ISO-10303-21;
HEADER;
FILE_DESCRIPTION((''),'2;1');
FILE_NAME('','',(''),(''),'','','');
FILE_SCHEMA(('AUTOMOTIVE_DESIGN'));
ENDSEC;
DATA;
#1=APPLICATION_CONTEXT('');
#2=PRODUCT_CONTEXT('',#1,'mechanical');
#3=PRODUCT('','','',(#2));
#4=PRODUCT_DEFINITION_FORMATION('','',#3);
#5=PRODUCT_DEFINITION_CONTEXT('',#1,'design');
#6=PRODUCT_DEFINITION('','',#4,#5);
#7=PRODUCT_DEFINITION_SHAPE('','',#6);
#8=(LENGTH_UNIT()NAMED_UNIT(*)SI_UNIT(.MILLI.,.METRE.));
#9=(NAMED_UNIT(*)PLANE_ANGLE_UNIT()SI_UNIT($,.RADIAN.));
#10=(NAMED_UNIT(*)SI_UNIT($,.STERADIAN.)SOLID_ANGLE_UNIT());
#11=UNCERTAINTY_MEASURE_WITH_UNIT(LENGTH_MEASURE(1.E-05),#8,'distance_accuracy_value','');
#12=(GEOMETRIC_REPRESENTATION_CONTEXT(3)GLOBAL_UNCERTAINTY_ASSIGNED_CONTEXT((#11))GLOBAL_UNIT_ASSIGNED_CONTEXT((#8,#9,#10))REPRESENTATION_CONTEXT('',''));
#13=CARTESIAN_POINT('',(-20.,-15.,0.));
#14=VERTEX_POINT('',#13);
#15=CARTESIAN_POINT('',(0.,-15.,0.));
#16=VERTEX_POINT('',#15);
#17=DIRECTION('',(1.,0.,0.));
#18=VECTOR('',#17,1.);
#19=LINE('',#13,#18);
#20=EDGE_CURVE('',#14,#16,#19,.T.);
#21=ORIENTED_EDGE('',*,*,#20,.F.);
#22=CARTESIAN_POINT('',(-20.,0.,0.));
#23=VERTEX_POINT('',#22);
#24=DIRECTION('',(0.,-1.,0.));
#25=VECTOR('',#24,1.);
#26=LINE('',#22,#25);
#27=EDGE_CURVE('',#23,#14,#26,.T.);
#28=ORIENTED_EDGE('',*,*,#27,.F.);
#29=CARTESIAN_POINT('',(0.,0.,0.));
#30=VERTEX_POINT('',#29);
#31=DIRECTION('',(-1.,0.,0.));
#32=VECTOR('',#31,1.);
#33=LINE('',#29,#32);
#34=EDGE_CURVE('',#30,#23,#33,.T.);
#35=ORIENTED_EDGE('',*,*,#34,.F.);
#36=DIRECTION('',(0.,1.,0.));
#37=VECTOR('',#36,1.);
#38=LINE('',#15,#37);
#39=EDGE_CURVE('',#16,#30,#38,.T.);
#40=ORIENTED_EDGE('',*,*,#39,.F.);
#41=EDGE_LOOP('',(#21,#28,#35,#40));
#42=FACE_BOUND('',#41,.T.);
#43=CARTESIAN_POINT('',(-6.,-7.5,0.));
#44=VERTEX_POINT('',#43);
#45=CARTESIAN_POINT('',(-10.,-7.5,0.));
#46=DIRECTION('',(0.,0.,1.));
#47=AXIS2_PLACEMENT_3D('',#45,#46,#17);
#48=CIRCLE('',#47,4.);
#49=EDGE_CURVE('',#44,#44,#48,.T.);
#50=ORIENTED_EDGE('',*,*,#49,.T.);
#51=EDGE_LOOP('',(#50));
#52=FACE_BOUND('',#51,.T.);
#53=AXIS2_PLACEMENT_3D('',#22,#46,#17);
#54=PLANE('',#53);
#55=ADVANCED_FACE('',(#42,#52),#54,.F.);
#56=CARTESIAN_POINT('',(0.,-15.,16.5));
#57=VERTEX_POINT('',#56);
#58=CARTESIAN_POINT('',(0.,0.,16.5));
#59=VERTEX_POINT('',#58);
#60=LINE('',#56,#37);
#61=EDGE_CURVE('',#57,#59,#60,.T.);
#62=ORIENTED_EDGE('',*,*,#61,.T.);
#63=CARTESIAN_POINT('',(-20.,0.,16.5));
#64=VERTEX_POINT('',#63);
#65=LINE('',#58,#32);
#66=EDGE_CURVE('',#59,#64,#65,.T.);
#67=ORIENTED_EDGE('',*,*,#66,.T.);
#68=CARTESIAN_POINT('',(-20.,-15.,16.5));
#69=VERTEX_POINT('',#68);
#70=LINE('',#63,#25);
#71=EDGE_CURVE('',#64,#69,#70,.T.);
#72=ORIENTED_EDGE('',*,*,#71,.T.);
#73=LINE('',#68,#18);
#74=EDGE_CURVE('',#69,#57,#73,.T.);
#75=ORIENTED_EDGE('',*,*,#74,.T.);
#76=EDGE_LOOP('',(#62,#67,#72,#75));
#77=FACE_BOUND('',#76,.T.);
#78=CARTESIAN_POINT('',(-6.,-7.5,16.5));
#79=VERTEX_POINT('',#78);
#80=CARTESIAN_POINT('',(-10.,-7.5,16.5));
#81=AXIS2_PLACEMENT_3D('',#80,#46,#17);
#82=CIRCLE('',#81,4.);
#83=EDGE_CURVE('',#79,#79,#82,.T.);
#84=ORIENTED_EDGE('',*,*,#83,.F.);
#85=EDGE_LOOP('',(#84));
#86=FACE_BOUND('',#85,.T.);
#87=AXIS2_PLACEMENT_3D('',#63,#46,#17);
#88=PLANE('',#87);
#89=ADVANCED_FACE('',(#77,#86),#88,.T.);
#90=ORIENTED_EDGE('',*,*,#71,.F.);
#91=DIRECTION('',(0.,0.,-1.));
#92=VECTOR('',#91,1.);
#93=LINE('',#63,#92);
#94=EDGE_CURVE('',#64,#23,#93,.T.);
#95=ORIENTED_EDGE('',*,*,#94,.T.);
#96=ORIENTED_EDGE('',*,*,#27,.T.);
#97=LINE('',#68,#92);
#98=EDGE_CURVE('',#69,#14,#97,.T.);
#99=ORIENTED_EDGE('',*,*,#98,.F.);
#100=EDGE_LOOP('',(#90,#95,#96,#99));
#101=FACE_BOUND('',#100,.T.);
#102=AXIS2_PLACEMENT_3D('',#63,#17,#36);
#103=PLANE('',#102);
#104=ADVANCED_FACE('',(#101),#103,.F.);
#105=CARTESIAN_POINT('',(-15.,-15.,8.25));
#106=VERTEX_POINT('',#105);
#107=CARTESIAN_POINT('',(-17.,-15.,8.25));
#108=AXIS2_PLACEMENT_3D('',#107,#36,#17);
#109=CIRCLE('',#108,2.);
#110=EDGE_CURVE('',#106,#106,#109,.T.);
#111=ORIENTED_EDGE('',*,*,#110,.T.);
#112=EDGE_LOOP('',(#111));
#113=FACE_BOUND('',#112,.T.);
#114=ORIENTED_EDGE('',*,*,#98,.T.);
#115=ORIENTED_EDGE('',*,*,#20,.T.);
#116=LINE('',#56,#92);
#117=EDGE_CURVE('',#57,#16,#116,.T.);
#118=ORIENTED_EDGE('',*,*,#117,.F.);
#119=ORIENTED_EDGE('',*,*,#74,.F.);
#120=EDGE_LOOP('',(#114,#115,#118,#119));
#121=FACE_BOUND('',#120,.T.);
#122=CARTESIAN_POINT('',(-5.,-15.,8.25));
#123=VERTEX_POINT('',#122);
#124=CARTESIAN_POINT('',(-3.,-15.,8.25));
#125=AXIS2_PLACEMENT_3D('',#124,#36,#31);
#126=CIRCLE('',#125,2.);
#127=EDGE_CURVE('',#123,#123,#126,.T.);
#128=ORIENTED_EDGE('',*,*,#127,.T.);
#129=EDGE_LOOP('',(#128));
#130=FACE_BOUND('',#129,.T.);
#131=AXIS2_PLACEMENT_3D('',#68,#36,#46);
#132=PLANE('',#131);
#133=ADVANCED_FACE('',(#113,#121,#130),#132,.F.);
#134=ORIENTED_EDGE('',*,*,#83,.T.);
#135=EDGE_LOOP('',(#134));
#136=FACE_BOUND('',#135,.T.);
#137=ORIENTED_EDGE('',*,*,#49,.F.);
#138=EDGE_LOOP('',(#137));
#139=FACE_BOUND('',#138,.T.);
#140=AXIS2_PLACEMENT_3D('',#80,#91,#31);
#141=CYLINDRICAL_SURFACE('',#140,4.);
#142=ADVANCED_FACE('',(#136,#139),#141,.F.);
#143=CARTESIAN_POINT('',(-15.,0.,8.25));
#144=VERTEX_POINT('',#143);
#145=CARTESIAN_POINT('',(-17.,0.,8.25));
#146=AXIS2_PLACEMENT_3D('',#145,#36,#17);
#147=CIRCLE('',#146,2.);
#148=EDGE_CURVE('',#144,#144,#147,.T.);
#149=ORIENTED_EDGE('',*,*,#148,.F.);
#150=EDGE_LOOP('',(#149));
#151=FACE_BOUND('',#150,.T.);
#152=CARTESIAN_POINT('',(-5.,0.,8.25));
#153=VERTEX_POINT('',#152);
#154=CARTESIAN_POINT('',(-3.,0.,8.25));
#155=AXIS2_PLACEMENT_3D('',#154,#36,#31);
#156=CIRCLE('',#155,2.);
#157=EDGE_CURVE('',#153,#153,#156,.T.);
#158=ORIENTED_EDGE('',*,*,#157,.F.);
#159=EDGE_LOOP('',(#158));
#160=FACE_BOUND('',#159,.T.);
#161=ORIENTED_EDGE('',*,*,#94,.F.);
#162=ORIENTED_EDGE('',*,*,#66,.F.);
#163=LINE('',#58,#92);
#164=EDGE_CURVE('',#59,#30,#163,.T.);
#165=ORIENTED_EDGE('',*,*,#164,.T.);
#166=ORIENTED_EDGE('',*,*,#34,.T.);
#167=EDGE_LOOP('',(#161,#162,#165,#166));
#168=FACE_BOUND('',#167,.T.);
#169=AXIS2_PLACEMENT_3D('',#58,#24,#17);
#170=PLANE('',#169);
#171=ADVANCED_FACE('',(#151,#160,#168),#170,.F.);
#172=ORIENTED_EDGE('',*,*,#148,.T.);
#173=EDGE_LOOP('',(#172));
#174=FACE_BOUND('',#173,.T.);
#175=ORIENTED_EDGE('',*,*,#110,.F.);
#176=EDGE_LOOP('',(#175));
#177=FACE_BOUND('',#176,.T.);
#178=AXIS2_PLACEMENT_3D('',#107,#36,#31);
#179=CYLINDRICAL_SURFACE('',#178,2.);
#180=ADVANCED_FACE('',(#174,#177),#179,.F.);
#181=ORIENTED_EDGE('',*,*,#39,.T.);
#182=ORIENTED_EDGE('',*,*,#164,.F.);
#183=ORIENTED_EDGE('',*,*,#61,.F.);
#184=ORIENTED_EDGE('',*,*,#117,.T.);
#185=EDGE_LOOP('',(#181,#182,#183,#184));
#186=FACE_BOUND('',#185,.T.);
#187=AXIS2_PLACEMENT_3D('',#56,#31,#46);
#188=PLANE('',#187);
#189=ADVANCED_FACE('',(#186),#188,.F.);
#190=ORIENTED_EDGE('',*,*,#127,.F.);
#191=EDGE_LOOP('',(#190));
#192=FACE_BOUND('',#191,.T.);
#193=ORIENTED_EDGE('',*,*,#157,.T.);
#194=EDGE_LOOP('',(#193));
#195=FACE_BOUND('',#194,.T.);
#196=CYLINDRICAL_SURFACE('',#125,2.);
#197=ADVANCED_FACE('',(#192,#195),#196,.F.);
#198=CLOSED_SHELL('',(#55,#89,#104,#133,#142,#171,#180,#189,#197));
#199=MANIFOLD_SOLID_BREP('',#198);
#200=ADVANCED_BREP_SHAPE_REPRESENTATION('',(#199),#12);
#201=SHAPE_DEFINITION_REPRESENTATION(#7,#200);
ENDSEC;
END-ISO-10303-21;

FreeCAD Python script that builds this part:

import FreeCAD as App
import Part
import Sketcher
from FreeCAD import Vector
Q = App.Units.Quantity

doc = App.newDocument("Part")
body = doc.addObject("PartDesign::Body", "Body")

sketch1 = body.newObject("Sketcher::SketchObject", "Sketch")
sketch1.AttachmentSupport = (doc.getObject("XY_Plane"), [""])
sketch1.MapMode = "FlatFace"
sketch1.addGeometry(Part.LineSegment(Vector(-20, 0, 0), Vector(-20, -15, 0)), False)
sketch1.addGeometry(Part.LineSegment(Vector(-20, -15, 0), Vector(0, -15, 0)), False)
sketch1.addGeometry(Part.LineSegment(Vector(0, -15, 0), Vector(0, 0, 0)), False)
sketch1.addGeometry(Part.LineSegment(Vector(0, 0, 0), Vector(-20, 0, 0)), False)
sketch1.addGeometry(Part.Circle(Vector(-10, -7.5, 0), Vector(0, 0, 1), 4), False)
sketch1.addConstraint(Sketcher.Constraint("Coincident", 0, 2, 1, 1))
sketch1.addConstraint(Sketcher.Constraint("Coincident", 1, 2, 2, 1))
sketch1.addConstraint(Sketcher.Constraint("Coincident", 2, 2, 3, 1))
sketch1.addConstraint(Sketcher.Constraint("Coincident", 3, 2, 0, 1))
sketch1.addConstraint(Sketcher.Constraint("Vertical", 0))
sketch1.addConstraint(Sketcher.Constraint("Horizontal", 1))
sketch1.addConstraint(Sketcher.Constraint("Vertical", 2))
sketch1.addConstraint(Sketcher.Constraint("Horizontal", 3))
sketch1.addConstraint(Sketcher.Constraint("Coincident", 2, 2, -1, 1))
sketch1.addConstraint(Sketcher.Constraint("Diameter", 4, Q("8 mm")))
sketch1.addConstraint(Sketcher.Constraint("DistanceX", 1, 1, 1, 2, Q("20 mm")))
sketch1.addConstraint(Sketcher.Constraint("DistanceY", 0, 2, 0, 1, Q("15 mm")))
sketch1.addConstraint(Sketcher.Constraint("DistanceX", 4, 3, -1, 1, Q("10 mm")))
sketch1.addConstraint(Sketcher.Constraint("DistanceY", 4, 3, -1, 1, Q("7.5 mm")))
pad1 = body.newObject("PartDesign::Pad", "Pad")
pad1.Profile = sketch1
pad1.Length = 16.5

sketch2 = body.newObject("Sketcher::SketchObject", "Sketch001")
sketch2.AttachmentSupport = (doc.getObject("XZ_Plane"), [""])
sketch2.MapMode = "FlatFace"
sketch2.addGeometry(Part.Circle(Vector(-17, 8.25, 0), Vector(0, 0, 1), 2), False)
sketch2.addGeometry(Part.Circle(Vector(-3, 8.25, 0), Vector(0, 0, 1), 2), False)
sketch2.addConstraint(Sketcher.Constraint("Equal", 0, 1))
sketch2.addConstraint(Sketcher.Constraint("Horizontal", 0, 3, 1, 3))
sketch2.addConstraint(Sketcher.Constraint("Diameter", 0, Q("4 mm")))
sketch2.addConstraint(Sketcher.Constraint("DistanceX", 0, 3, -1, 1, Q("17 mm")))
sketch2.addConstraint(Sketcher.Constraint("DistanceX", 1, 3, -1, 1, Q("3 mm")))
sketch2.addConstraint(Sketcher.Constraint("DistanceY", -1, 1, 0, 3, Q("8.25 mm")))
pocket1 = body.newObject("PartDesign::Pocket", "Pocket")
pocket1.Profile = sketch2
pocket1.Type = "ThroughAll"
pocket1.Reversed = True

doc.recompute()
